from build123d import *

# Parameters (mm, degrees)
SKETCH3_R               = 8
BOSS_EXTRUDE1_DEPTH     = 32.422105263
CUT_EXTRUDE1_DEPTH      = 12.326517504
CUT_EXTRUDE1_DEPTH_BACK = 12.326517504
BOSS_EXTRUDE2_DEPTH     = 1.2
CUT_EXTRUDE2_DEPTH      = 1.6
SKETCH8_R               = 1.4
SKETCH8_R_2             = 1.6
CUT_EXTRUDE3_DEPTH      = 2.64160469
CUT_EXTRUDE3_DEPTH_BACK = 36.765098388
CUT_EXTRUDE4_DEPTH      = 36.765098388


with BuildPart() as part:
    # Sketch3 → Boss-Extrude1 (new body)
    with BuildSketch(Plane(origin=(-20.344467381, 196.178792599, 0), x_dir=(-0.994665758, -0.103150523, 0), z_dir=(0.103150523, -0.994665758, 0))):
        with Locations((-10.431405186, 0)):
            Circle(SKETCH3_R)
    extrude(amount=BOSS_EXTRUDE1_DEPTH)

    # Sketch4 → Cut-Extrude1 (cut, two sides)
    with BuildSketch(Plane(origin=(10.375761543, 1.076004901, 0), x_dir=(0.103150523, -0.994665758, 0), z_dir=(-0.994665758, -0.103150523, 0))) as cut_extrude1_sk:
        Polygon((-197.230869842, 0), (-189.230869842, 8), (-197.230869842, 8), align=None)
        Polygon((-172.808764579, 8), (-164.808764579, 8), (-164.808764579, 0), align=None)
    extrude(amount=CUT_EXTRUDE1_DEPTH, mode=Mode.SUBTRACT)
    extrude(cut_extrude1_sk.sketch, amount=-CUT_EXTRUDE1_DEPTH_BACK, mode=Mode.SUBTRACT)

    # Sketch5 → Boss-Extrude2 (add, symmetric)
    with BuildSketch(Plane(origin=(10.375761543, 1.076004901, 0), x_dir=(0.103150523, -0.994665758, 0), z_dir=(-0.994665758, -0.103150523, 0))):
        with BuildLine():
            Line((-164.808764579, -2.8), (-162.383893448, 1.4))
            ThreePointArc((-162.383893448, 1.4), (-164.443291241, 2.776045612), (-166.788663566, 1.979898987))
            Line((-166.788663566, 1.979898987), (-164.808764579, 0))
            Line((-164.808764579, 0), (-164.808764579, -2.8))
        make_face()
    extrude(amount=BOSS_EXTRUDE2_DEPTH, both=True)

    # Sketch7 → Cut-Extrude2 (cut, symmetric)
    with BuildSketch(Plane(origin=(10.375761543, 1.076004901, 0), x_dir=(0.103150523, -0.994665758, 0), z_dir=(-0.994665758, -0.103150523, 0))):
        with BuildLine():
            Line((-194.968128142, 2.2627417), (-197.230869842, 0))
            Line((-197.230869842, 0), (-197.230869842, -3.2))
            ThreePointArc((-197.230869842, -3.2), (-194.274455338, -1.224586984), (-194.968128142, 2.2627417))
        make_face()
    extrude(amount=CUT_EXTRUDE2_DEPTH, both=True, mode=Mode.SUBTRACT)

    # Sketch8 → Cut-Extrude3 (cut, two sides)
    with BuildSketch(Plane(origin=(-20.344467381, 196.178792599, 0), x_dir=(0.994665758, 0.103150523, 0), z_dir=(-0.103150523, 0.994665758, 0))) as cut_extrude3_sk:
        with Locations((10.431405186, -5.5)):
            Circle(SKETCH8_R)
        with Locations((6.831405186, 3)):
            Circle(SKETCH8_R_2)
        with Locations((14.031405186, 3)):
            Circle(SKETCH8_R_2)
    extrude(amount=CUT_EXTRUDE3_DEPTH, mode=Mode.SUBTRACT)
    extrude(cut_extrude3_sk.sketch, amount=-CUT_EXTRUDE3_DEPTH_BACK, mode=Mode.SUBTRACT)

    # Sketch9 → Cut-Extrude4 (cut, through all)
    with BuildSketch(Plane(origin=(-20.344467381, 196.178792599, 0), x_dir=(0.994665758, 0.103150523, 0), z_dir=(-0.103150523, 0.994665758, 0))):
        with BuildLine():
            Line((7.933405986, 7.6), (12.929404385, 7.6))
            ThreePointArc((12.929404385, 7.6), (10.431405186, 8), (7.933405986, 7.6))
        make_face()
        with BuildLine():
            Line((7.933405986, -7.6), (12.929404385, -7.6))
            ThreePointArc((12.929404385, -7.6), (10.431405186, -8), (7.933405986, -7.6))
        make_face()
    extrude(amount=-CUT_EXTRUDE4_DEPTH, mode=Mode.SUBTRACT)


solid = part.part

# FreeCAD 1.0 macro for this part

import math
import FreeCAD as App
import Part
import Sketcher

V = App.Vector
Q = App.Units.Quantity

doc = App.newDocument("Part")
body = doc.addObject("PartDesign::Body", "Body")

# Sketch on an angled plane
sketch1 = doc.addObject("Sketcher::SketchObject", "Sketch")
body.addObject(sketch1)
sketch1.Placement = App.Placement(V(-20.344467, 196.178793, 0), App.Rotation(V(-0.994665758, -0.103150523, 0), V(0, 0, -1.000000001), V(0.103150523, -0.994665758, 0), "ZXY"))
sketch1.addGeometry(Part.Circle(V(-10, 0, 0), V(0, 0, 1), 8), False)
sketch1.addConstraint(Sketcher.Constraint("PointOnObject", 0, 3, -1))
sketch1.addConstraint(Sketcher.Constraint("Diameter", 0, 16.0))
sketch1.addConstraint(Sketcher.Constraint("DistanceX", 0, 3, -1, 1, 10.431405))
pad1 = doc.addObject("PartDesign::Pad", "Pad")
body.addObject(pad1)
pad1.Profile = sketch1
pad1.Length = 32.422105

# Sketch on an angled plane
sketch2 = doc.addObject("Sketcher::SketchObject", "Sketch001")
body.addObject(sketch2)
sketch2.Placement = App.Placement(V(10.375762, 1.076005, 0), App.Rotation(V(0.103150523, -0.994665758, 0), V(0, 0, 1.000000001), V(-0.994665758, -0.103150523, 0), "ZXY"))
sketch2.addGeometry(Part.LineSegment(V(-197, 0, 0), V(-189, 8, 0)), False)
sketch2.addGeometry(Part.LineSegment(V(-189, 8, 0), V(-197, 8, 0)), False)
sketch2.addGeometry(Part.LineSegment(V(-197, 8, 0), V(-197, 0, 0)), False)
sketch2.addGeometry(Part.LineSegment(V(-165, 8, 0), V(-173, 8, 0)), False)
sketch2.addGeometry(Part.LineSegment(V(-173, 8, 0), V(-165, 0, 0)), False)
sketch2.addGeometry(Part.LineSegment(V(-165, 0, 0), V(-165, 8, 0)), False)
sketch2.addConstraint(Sketcher.Constraint("Coincident", 0, 2, 1, 1))
sketch2.addConstraint(Sketcher.Constraint("Coincident", 1, 2, 2, 1))
sketch2.addConstraint(Sketcher.Constraint("Coincident", 2, 2, 0, 1))
sketch2.addConstraint(Sketcher.Constraint("Coincident", 3, 2, 4, 1))
sketch2.addConstraint(Sketcher.Constraint("Coincident", 4, 2, 5, 1))
sketch2.addConstraint(Sketcher.Constraint("Coincident", 5, 2, 3, 1))
sketch2.addConstraint(Sketcher.Constraint("Horizontal", 1))
sketch2.addConstraint(Sketcher.Constraint("Vertical", 2))
sketch2.addConstraint(Sketcher.Constraint("Horizontal", 3))
sketch2.addConstraint(Sketcher.Constraint("Vertical", 5))
sketch2.addConstraint(Sketcher.Constraint("PointOnObject", 2, 2, -1))
sketch2.addConstraint(Sketcher.Constraint("PointOnObject", 4, 2, -1))
sketch2.addConstraint(Sketcher.Constraint("Perpendicular", 0, 4))
sketch2.addConstraint(Sketcher.Constraint("Horizontal", 1, 2, 3, 2))
sketch2.addConstraint(Sketcher.Constraint("Equal", 1, 3))
sketch2.addConstraint(Sketcher.Constraint("DistanceX", 1, 2, 1, 1, 8.0))
sketch2.addConstraint(Sketcher.Constraint("DistanceX", 0, 2, -1, 1, 189.23087))
sketch2.addConstraint(Sketcher.Constraint("DistanceX", 3, 2, -1, 1, 172.808765))
pocket1 = doc.addObject("PartDesign::Pocket", "Pocket")
body.addObject(pocket1)
pocket1.Profile = sketch2
pocket1.Type = "ThroughAll"
pocket1.Midplane = True

# Sketch on an angled plane
sketch3 = doc.addObject("Sketcher::SketchObject", "Sketch002")
body.addObject(sketch3)
sketch3.Placement = App.Placement(V(10.375762, 1.076005, 0), App.Rotation(V(0.103150523, -0.994665758, 0), V(0, 0, 1.000000001), V(-0.994665758, -0.103150523, 0), "ZXY"))
sketch3.addGeometry(Part.LineSegment(V(-164.8, -2.8, 0), V(-162.4, 1.4, 0)), False)
sketch3.addGeometry(Part.ArcOfCircle(Part.Circle(V(-164.8, 0, 0), V(0, 0, 1), 2.8), math.radians(30), math.radians(135)), False)
sketch3.addGeometry(Part.LineSegment(V(-166.8, 2, 0), V(-164.8, 0, 0)), False)
sketch3.addGeometry(Part.LineSegment(V(-164.8, 0, 0), V(-164.8, -2.8, 0)), False)
sketch3.addConstraint(Sketcher.Constraint("Coincident", 0, 2, 1, 1))
sketch3.addConstraint(Sketcher.Constraint("Coincident", 1, 2, 2, 1))
sketch3.addConstraint(Sketcher.Constraint("Coincident", 2, 2, 3, 1))
sketch3.addConstraint(Sketcher.Constraint("Coincident", 3, 2, 0, 1))
sketch3.addConstraint(Sketcher.Constraint("Vertical", 3))
sketch3.addConstraint(Sketcher.Constraint("Coincident", 2, 2, 1, 3))
sketch3.addConstraint(Sketcher.Constraint("PointOnObject", 1, 3, -1))
sketch3.addConstraint(Sketcher.Constraint("Radius", 1, 2.8))
sketch3.addConstraint(Sketcher.Constraint("Angle", 0, Q("60 deg")))
sketch3.addConstraint(Sketcher.Constraint("Angle", 2, Q("-45 deg")))
sketch3.addConstraint(Sketcher.Constraint("DistanceY", 3, 2, 3, 1, 2.8))
sketch3.addConstraint(Sketcher.Constraint("DistanceX", 1, 3, -1, 1, 164.808765))
pad2 = doc.addObject("PartDesign::Pad", "Pad001")
body.addObject(pad2)
pad2.Profile = sketch3
pad2.Length = 2.4
pad2.Midplane = True

# Sketch on an angled plane
sketch4 = doc.addObject("Sketcher::SketchObject", "Sketch003")
body.addObject(sketch4)
sketch4.Placement = App.Placement(V(10.375762, 1.076005, 0), App.Rotation(V(0.103150523, -0.994665758, 0), V(0, 0, 1.000000001), V(-0.994665758, -0.103150523, 0), "ZXY"))
sketch4.addGeometry(Part.LineSegment(V(-195, 2.3, 0), V(-197.2, 0, 0)), False)
sketch4.addGeometry(Part.LineSegment(V(-197.2, 0, 0), V(-197.2, -3.2, 0)), False)
sketch4.addGeometry(Part.ArcOfCircle(Part.Circle(V(-197.2, 0, 0), V(0, 0, 1), 3.2), math.radians(-90), math.radians(45)), False)
sketch4.addConstraint(Sketcher.Constraint("Coincident", 0, 2, 1, 1))
sketch4.addConstraint(Sketcher.Constraint("Coincident", 1, 2, 2, 1))
sketch4.addConstraint(Sketcher.Constraint("Coincident", 2, 2, 0, 1))
sketch4.addConstraint(Sketcher.Constraint("Vertical", 1))
sketch4.addConstraint(Sketcher.Constraint("Coincident", 0, 2, 2, 3))
sketch4.addConstraint(Sketcher.Constraint("PointOnObject", 2, 3, -1))
sketch4.addConstraint(Sketcher.Constraint("Radius", 2, 3.2))
sketch4.addConstraint(Sketcher.Constraint("Angle", 0, Q("-135 deg")))
sketch4.addConstraint(Sketcher.Constraint("DistanceX", 2, 3, -1, 1, 197.23087))
pocket2 = doc.addObject("PartDesign::Pocket", "Pocket001")
body.addObject(pocket2)
pocket2.Profile = sketch4
pocket2.Length = 3.2
pocket2.Midplane = True

# Sketch on an angled plane
sketch5 = doc.addObject("Sketcher::SketchObject", "Sketch004")
body.addObject(sketch5)
sketch5.Placement = App.Placement(V(-20.344467, 196.178793, 0), App.Rotation(V(0.994665758, 0.103150523, 0), V(0, 0, -1.000000001), V(-0.103150523, 0.994665758, 0), "ZXY"))
sketch5.addGeometry(Part.Circle(V(10.4, -5.5, 0), V(0, 0, 1), 1.4), False)
sketch5.addGeometry(Part.Circle(V(6.8, 3, 0), V(0, 0, 1), 1.6), False)
sketch5.addGeometry(Part.Circle(V(14, 3, 0), V(0, 0, 1), 1.6), False)
sketch5.addConstraint(Sketcher.Constraint("Equal", 1, 2))
sketch5.addConstraint(Sketcher.Constraint("Horizontal", 1, 3, 2, 3))
sketch5.addConstraint(Sketcher.Constraint("Diameter", 0, 2.8))
sketch5.addConstraint(Sketcher.Constraint("Diameter", 1, 3.2))
sketch5.addConstraint(Sketcher.Constraint("DistanceY", -1, 1, 1, 3, 3.0))
sketch5.addConstraint(Sketcher.Constraint("DistanceY", 0, 3, -1, 1, 5.5))
sketch5.addConstraint(Sketcher.Constraint("DistanceX", 1, 3, 0, 3, 3.6))
sketch5.addConstraint(Sketcher.Constraint("DistanceX", 1, 3, 2, 3, 7.2))
sketch5.addConstraint(Sketcher.Constraint("DistanceX", -1, 1, 0, 3, 10.431405))
pocket3 = doc.addObject("PartDesign::Pocket", "Pocket002")
body.addObject(pocket3)
pocket3.Profile = sketch5
pocket3.Type = "ThroughAll"
pocket3.Midplane = True

# Sketch on an angled plane
sketch6 = doc.addObject("Sketcher::SketchObject", "Sketch005")
body.addObject(sketch6)
sketch6.Placement = App.Placement(V(-20.344467, 196.178793, 0), App.Rotation(V(0.994665758, 0.103150523, 0), V(0, 0, -1.000000001), V(-0.103150523, 0.994665758, 0), "ZXY"))
sketch6.addGeometry(Part.LineSegment(V(7.9, 7.6, 0), V(12.9, 7.6, 0)), False)
sketch6.addGeometry(Part.ArcOfCircle(Part.Circle(V(10.4, 0, 0), V(0, 0, 1), 8), math.radians(72), math.radians(108)), False)
sketch6.addGeometry(Part.LineSegment(V(12.9, -7.6, 0), V(7.9, -7.6, 0)), False)
sketch6.addGeometry(Part.ArcOfCircle(Part.Circle(V(10.4, 0, 0), V(0, 0, 1), 8), math.radians(-108), math.radians(-72)), False)
sketch6.addConstraint(Sketcher.Constraint("Coincident", 0, 1, 1, 2))
sketch6.addConstraint(Sketcher.Constraint("Coincident", 1, 1, 0, 2))
sketch6.addConstraint(Sketcher.Constraint("Coincident", 2, 1, 3, 2))
sketch6.addConstraint(Sketcher.Constraint("Coincident", 3, 1, 2, 2))
sketch6.addConstraint(Sketcher.Constraint("Horizontal", 0))
sketch6.addConstraint(Sketcher.Constraint("Horizontal", 2))
sketch6.addConstraint(Sketcher.Constraint("Coincident", 3, 3, 1, 3))
sketch6.addConstraint(Sketcher.Constraint("Equal", 1, 3))
sketch6.addConstraint(Sketcher.Constraint("Symmetric", 1, 1, 2, 1, -1))
sketch6.addConstraint(Sketcher.Constraint("Radius", 1, 8.0))
sketch6.addConstraint(Sketcher.Constraint("DistanceY", -1, 1, 0, 1, 7.6))
sketch6.addConstraint(Sketcher.Constraint("DistanceX", -1, 1, 1, 3, 10.431405))
pocket4 = doc.addObject("PartDesign::Pocket", "Pocket003")
body.addObject(pocket4)
pocket4.Profile = sketch6
pocket4.Type = "ThroughAll"

doc.recompute()
